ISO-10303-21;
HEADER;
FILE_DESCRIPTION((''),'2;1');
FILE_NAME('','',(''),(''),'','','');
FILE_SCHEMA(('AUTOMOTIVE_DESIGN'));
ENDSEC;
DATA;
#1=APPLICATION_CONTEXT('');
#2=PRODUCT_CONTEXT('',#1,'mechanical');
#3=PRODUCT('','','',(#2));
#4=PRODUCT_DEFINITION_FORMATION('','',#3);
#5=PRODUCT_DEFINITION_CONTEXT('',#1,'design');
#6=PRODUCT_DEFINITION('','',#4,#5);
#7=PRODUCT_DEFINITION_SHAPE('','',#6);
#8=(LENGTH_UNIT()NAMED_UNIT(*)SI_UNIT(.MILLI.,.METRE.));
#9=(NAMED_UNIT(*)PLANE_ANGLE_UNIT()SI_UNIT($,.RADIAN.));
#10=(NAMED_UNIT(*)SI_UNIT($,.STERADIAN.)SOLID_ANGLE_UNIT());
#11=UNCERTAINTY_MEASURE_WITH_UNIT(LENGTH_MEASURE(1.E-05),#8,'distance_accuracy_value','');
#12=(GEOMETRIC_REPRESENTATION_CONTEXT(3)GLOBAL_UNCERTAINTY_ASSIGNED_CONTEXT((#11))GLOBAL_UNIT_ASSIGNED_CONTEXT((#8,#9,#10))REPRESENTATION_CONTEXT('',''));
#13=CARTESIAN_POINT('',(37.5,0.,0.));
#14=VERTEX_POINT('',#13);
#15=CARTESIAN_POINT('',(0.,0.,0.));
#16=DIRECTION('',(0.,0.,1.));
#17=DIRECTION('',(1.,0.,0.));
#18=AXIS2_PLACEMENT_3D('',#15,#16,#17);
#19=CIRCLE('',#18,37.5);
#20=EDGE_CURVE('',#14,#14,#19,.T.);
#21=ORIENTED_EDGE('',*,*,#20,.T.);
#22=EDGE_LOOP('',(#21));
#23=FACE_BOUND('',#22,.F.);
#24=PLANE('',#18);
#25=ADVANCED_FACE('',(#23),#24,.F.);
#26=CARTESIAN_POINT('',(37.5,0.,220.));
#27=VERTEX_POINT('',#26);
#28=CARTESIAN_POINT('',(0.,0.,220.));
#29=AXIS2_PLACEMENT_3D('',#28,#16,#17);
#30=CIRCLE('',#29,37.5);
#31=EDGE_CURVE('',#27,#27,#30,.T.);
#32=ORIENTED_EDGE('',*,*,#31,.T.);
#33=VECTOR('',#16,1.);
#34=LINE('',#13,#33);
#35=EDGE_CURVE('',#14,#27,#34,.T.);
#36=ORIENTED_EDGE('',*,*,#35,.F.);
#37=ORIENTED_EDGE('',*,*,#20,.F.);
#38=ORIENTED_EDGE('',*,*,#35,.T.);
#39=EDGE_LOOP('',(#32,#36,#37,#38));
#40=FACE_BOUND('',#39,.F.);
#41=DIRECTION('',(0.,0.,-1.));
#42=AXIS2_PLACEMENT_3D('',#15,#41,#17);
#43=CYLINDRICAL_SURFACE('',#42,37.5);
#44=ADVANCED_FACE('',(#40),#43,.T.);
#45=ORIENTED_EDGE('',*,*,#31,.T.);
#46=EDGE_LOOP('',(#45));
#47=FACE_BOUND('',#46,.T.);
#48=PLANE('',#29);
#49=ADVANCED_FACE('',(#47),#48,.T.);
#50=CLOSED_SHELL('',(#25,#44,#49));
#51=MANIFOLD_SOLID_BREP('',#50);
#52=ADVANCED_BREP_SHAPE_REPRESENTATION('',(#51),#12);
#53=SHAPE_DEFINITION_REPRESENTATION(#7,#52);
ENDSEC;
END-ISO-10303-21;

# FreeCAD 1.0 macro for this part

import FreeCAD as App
import Part
import Sketcher

V = App.Vector
Q = App.Units.Quantity

doc = App.newDocument("Part")
params = doc.addObject("Spreadsheet::Sheet", "Params")
for row, (alias, value) in enumerate([
    ("sketch1_diameter", "75 mm"),
    ("pad1_length", "220 mm"),
], start=1):
    params.set(f"A{row}", alias)
    params.set(f"B{row}", "=" + value)
    params.setAlias(f"B{row}", alias)

body = doc.addObject("PartDesign::Body", "Body")

# Sketch on XY plane
sketch1 = body.newObject("Sketcher::SketchObject", "Sketch")
sketch1.AttachmentSupport = (doc.getObject("XY_Plane"), [""])
sketch1.MapMode = "FlatFace"
sketch1.addGeometry(Part.Circle(V(0, 0, 0), V(0, 0, 1), 38), False)
sketch1.addConstraint([
    Sketcher.Constraint("Coincident", 0, 3, -1, 1),
    Sketcher.Constraint("Diameter", 0, Q("75 mm")),
])
sketch1.setExpression("Constraints[1]", "Params.sketch1_diameter")
pad1 = body.newObject("PartDesign::Pad", "Pad")
pad1.Profile = sketch1
pad1.setExpression("Length", "Params.pad1_length")

doc.recompute()
